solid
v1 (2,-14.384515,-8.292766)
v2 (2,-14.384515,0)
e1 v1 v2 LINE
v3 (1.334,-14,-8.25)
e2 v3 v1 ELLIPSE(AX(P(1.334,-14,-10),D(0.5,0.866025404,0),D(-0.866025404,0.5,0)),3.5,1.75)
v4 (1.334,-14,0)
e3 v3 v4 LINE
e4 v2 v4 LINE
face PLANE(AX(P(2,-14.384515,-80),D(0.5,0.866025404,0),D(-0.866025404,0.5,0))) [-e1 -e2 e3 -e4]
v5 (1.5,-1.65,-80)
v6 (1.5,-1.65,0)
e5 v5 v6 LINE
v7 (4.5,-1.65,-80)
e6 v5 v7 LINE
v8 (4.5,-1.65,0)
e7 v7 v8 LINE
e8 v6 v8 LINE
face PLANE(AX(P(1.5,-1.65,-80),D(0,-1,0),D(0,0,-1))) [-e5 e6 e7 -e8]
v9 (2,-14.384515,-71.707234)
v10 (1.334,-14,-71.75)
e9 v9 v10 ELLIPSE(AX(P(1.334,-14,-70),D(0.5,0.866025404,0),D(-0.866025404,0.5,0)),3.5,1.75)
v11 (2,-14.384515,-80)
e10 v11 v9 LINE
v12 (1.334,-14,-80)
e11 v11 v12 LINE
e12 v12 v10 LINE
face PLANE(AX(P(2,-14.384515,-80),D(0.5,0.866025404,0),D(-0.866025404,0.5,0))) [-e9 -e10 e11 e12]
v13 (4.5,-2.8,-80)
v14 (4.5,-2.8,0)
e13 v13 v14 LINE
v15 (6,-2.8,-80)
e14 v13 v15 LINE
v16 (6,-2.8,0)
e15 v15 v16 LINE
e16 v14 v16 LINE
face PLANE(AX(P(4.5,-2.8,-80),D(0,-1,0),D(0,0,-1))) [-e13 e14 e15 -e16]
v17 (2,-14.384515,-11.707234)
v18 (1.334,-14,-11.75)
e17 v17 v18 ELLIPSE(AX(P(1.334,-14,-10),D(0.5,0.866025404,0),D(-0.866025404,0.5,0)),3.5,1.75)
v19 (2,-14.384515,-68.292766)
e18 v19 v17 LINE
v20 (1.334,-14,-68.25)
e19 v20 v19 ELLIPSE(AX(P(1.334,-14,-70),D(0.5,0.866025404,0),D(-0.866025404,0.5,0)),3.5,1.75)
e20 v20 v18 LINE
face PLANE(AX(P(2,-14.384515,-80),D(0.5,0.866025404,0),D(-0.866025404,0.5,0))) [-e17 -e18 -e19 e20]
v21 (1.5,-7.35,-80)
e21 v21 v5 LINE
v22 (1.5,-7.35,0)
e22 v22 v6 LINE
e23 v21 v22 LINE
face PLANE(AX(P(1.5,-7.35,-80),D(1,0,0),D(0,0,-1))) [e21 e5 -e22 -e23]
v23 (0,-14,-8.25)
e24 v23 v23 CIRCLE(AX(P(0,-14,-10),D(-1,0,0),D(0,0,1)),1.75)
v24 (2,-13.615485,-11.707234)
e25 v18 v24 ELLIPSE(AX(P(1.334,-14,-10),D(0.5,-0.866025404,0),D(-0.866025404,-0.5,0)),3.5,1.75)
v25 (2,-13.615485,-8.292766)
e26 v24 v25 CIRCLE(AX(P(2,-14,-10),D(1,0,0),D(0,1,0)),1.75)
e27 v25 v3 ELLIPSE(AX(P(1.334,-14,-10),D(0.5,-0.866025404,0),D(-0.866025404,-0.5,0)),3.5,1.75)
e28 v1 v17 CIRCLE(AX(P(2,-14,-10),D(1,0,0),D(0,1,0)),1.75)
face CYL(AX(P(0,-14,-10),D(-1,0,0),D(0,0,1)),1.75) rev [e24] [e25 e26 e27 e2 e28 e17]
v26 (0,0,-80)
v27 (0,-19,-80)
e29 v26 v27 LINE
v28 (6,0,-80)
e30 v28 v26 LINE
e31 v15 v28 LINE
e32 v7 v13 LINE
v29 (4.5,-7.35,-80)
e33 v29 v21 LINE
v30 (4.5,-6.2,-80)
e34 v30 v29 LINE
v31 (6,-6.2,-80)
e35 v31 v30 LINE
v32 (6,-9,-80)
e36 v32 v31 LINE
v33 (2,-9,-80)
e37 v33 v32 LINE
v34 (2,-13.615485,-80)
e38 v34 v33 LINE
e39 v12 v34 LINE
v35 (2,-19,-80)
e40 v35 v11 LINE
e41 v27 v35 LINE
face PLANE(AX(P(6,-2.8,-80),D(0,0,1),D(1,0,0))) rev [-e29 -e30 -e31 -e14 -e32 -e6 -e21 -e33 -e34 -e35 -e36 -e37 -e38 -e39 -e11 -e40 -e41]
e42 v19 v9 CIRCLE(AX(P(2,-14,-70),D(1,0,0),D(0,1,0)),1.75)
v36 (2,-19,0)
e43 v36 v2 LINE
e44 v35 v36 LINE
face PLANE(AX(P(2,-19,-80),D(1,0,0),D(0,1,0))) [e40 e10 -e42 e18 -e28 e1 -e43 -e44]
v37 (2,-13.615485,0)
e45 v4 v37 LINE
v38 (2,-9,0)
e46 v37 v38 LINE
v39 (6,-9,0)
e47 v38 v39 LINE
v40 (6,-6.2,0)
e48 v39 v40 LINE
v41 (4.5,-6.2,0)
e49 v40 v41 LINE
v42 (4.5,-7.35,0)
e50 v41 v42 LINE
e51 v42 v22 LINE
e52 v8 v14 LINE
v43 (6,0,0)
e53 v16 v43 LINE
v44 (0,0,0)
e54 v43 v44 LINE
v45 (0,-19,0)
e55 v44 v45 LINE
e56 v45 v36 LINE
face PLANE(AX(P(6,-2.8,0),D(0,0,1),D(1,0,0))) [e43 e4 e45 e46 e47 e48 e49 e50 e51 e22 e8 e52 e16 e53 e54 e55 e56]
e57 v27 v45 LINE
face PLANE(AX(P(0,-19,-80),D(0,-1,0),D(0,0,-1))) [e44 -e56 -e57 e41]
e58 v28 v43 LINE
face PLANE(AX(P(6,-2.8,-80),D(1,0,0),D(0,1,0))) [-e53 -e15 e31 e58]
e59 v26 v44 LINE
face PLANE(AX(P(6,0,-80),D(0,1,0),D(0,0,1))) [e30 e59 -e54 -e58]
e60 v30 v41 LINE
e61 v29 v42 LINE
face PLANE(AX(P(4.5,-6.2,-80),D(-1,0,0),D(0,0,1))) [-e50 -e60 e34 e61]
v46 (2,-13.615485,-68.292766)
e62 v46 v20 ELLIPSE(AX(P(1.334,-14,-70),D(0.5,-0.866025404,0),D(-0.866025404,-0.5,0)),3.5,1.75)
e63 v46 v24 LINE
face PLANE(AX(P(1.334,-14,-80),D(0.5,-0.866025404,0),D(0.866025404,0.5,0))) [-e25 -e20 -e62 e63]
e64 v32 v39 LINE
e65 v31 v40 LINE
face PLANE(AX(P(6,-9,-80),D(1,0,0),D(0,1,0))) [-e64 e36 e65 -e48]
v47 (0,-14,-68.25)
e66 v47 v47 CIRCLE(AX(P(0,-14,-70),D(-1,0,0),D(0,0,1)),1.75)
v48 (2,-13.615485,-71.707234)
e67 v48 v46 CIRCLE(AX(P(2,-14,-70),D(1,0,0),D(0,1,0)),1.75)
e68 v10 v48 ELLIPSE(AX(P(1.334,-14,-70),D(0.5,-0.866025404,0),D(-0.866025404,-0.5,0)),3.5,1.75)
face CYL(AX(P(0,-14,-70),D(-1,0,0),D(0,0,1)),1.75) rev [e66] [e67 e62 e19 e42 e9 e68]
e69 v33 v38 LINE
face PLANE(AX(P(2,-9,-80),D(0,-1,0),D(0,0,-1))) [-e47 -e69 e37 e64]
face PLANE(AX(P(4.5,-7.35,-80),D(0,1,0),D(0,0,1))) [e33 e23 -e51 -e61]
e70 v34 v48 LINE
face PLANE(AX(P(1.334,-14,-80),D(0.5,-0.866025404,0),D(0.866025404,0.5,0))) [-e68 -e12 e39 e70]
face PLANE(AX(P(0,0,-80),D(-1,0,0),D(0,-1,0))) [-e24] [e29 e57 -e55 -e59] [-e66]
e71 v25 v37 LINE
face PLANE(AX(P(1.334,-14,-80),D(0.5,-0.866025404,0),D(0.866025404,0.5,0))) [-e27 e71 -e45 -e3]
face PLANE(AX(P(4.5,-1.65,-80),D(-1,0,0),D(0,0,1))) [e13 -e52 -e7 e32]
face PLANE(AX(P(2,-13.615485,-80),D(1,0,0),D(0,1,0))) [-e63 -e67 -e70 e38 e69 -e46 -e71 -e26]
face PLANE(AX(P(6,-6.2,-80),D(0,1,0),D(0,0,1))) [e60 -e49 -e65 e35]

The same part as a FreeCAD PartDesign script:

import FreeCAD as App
import Part
import Sketcher
Q = App.Units.Quantity


def add_polygon(sketch, points):
    """Adds a closed chain of lines whose ends are joined by coincident constraints."""
    first, n = sketch.GeometryCount, len(points)
    for a, b in zip(points, points[1:] + points[:1]):
        sketch.addGeometry(Part.LineSegment(App.Vector(*a, 0), App.Vector(*b, 0)), False)
    for i in range(n):
        sketch.addConstraint(Sketcher.Constraint("Coincident", first + i, 2, first + (i + 1) % n, 1))

doc = App.newDocument("Part")
body = doc.addObject("PartDesign::Body", "Body")

# Sketch on XY plane
sketch1 = body.newObject("Sketcher::SketchObject", "Sketch")
sketch1.AttachmentSupport = (doc.getObject("XY_Plane"), [""])
sketch1.MapMode = "FlatFace"
add_polygon(sketch1, [(6, -2.8), (6, 0), (0, 0), (0, -19), (2, -19), (2, -14.384515), (1.334, -14), (2, -13.615485), (2, -9), (6, -9), (6, -6.2), (4.5, -6.2), (4.5, -7.35), (1.5, -7.35), (1.5, -1.65), (4.5, -1.65), (4.5, -2.8)])  # lines 0-16
sketch1.addConstraint(Sketcher.Constraint("Vertical", 0))
sketch1.addConstraint(Sketcher.Constraint("Horizontal", 1))
sketch1.addConstraint(Sketcher.Constraint("Vertical", 2))
sketch1.addConstraint(Sketcher.Constraint("Horizontal", 3))
sketch1.addConstraint(Sketcher.Constraint("Vertical", 4))
sketch1.addConstraint(Sketcher.Constraint("Vertical", 7))
sketch1.addConstraint(Sketcher.Constraint("Horizontal", 8))
sketch1.addConstraint(Sketcher.Constraint("Vertical", 9))
sketch1.addConstraint(Sketcher.Constraint("Horizontal", 10))
sketch1.addConstraint(Sketcher.Constraint("Vertical", 11))
sketch1.addConstraint(Sketcher.Constraint("Horizontal", 12))
sketch1.addConstraint(Sketcher.Constraint("Vertical", 13))
sketch1.addConstraint(Sketcher.Constraint("Horizontal", 14))
sketch1.addConstraint(Sketcher.Constraint("Vertical", 15))
sketch1.addConstraint(Sketcher.Constraint("Horizontal", 16))
sketch1.addConstraint(Sketcher.Constraint("Coincident", 1, 2, -1, 1))
sketch1.addConstraint(Sketcher.Constraint("Vertical", 4, 2, 6, 2))
sketch1.addConstraint(Sketcher.Constraint("Vertical", 0, 2, 8, 2))
sketch1.addConstraint(Sketcher.Constraint("Vertical", 11, 2, 14, 2))
sketch1.addConstraint(Sketcher.Constraint("Equal", 4, 7))
sketch1.addConstraint(Sketcher.Constraint("Equal", 0, 9))
sketch1.addConstraint(Sketcher.Constraint("Equal", 11, 15))
sketch1.addConstraint(Sketcher.Constraint("Equal", 5, 6))
sketch1.addConstraint(Sketcher.Constraint("DistanceX", 1, 2, 1, 1, 6.0))
sketch1.addConstraint(Sketcher.Constraint("DistanceX", 3, 1, 3, 2, 2.0))
sketch1.addConstraint(Sketcher.Constraint("DistanceX", 12, 2, 12, 1, 3.0))
sketch1.addConstraint(Sketcher.Constraint("DistanceY", 2, 2, 2, 1, 19.0))
sketch1.addConstraint(Sketcher.Constraint("Angle", 5, Q("150 deg")))
sketch1.addConstraint(Sketcher.Constraint("DistanceX", 10, 2, 10, 1, 1.5))
sketch1.addConstraint(Sketcher.Constraint("DistanceY", 0, 1, 0, 2, 2.8))
sketch1.addConstraint(Sketcher.Constraint("DistanceY", 13, 1, 13, 2, 5.7))
sketch1.addConstraint(Sketcher.Constraint("DistanceY", 5, 2, -1, 1, 14.0))
sketch1.addConstraint(Sketcher.Constraint("DistanceX", -1, 1, 5, 2, 1.334))
pad1 = body.newObject("PartDesign::Pad", "Pad")
pad1.Profile = sketch1
pad1.Length = 80
pad1.Reversed = True

# Sketch on YZ plane
sketch2 = body.newObject("Sketcher::SketchObject", "Sketch001")
sketch2.AttachmentSupport = (doc.getObject("YZ_Plane"), [""])
sketch2.MapMode = "FlatFace"
sketch2.addGeometry(Part.Circle(App.Vector(-14, -10, 0), App.Vector(0, 0, 1), 1.75), False)
sketch2.addGeometry(Part.Circle(App.Vector(-14, -70, 0), App.Vector(0, 0, 1), 1.75), False)
sketch2.addConstraint(Sketcher.Constraint("Equal", 0, 1))
sketch2.addConstraint(Sketcher.Constraint("Vertical", 0, 3, 1, 3))
sketch2.addConstraint(Sketcher.Constraint("Diameter", 0, 3.5))
sketch2.addConstraint(Sketcher.Constraint("DistanceX", 0, 3, -1, 1, 14.0))
sketch2.addConstraint(Sketcher.Constraint("DistanceY", 0, 3, -1, 1, 10.0))
sketch2.addConstraint(Sketcher.Constraint("DistanceY", 1, 3, -1, 1, 70.0))
doc.recompute()
hole = body.newObject("PartDesign::Hole", "Hole")
hole.Profile = sketch2
hole.ThreadType = "None"
hole.Diameter = 3.5
hole.DepthType = "ThroughAll"
hole.Reversed = True

doc.recompute()
